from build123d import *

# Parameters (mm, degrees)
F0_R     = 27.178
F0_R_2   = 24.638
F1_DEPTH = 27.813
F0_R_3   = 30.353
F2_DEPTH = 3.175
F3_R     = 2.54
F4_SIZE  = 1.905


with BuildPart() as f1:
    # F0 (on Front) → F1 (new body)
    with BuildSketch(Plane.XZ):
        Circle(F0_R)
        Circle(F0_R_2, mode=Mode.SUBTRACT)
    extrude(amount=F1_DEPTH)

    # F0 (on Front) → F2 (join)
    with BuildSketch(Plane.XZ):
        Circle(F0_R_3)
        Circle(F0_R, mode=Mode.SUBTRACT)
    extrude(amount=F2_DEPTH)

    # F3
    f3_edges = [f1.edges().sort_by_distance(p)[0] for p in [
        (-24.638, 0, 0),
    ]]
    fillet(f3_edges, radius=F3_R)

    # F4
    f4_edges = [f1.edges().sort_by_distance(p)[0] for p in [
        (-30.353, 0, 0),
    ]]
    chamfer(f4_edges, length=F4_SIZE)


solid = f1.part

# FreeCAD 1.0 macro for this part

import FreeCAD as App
import Part
import Sketcher

V = App.Vector
Q = App.Units.Quantity


def edges_at(feature, points):
    """Names of the edges that pass closest to the given points."""
    edges = feature.Shape.Edges
    near = lambda p: min(range(len(edges)), key=lambda i: edges[i].distToShape(Part.Vertex(*p))[0])
    return sorted({f"Edge{near(p) + 1}" for p in points})

doc = App.newDocument("Part")
body = doc.addObject("PartDesign::Body", "Body")

# Sketch on XZ plane
sketch1 = body.newObject("Sketcher::SketchObject", "Sketch")
sketch1.AttachmentSupport = (doc.getObject("XZ_Plane"), [""])
sketch1.MapMode = "FlatFace"
sketch1.addGeometry(Part.Circle(V(0, 0, 0), V(0, 0, 1), 27.178), False)
sketch1.addGeometry(Part.Circle(V(0, 0, 0), V(0, 0, 1), 24.638), False)
sketch1.addConstraint(Sketcher.Constraint("Coincident", 0, 3, -1, 1))
sketch1.addConstraint(Sketcher.Constraint("Coincident", 1, 3, -1, 1))
sketch1.addConstraint(Sketcher.Constraint("Diameter", 0, Q("2.14 in")))
sketch1.addConstraint(Sketcher.Constraint("Diameter", 1, Q("1.94 in")))
pad1 = body.newObject("PartDesign::Pad", "Pad")
pad1.Profile = sketch1
pad1.Length = Q("1.095 in")

# Sketch on XZ plane
sketch2 = body.newObject("Sketcher::SketchObject", "Sketch001")
sketch2.AttachmentSupport = (doc.getObject("XZ_Plane"), [""])
sketch2.MapMode = "FlatFace"
sketch2.addGeometry(Part.Circle(V(0, 0, 0), V(0, 0, 1), 30.353), False)
sketch2.addGeometry(Part.Circle(V(0, 0, 0), V(0, 0, 1), 27.178), False)
sketch2.addConstraint(Sketcher.Constraint("Coincident", 0, 3, -1, 1))
sketch2.addConstraint(Sketcher.Constraint("Coincident", 1, 3, -1, 1))
sketch2.addConstraint(Sketcher.Constraint("Diameter", 0, Q("2.39 in")))
sketch2.addConstraint(Sketcher.Constraint("Diameter", 1, Q("2.14 in")))
pad2 = body.newObject("PartDesign::Pad", "Pad001")
pad2.Profile = sketch2
pad2.Length = Q("0.125 in")
doc.recompute()

fillet = body.newObject("PartDesign::Fillet", "Fillet")
fillet.Base = (pad2, edges_at(pad2, [(-24.638, 0, 0)]))
fillet.Radius = Q("0.1 in")
doc.recompute()

chamfer = body.newObject("PartDesign::Chamfer", "Chamfer")
chamfer.Base = (fillet, edges_at(fillet, [(-30.353, 0, 0)]))
chamfer.Size = Q("0.075 in")

doc.recompute()
